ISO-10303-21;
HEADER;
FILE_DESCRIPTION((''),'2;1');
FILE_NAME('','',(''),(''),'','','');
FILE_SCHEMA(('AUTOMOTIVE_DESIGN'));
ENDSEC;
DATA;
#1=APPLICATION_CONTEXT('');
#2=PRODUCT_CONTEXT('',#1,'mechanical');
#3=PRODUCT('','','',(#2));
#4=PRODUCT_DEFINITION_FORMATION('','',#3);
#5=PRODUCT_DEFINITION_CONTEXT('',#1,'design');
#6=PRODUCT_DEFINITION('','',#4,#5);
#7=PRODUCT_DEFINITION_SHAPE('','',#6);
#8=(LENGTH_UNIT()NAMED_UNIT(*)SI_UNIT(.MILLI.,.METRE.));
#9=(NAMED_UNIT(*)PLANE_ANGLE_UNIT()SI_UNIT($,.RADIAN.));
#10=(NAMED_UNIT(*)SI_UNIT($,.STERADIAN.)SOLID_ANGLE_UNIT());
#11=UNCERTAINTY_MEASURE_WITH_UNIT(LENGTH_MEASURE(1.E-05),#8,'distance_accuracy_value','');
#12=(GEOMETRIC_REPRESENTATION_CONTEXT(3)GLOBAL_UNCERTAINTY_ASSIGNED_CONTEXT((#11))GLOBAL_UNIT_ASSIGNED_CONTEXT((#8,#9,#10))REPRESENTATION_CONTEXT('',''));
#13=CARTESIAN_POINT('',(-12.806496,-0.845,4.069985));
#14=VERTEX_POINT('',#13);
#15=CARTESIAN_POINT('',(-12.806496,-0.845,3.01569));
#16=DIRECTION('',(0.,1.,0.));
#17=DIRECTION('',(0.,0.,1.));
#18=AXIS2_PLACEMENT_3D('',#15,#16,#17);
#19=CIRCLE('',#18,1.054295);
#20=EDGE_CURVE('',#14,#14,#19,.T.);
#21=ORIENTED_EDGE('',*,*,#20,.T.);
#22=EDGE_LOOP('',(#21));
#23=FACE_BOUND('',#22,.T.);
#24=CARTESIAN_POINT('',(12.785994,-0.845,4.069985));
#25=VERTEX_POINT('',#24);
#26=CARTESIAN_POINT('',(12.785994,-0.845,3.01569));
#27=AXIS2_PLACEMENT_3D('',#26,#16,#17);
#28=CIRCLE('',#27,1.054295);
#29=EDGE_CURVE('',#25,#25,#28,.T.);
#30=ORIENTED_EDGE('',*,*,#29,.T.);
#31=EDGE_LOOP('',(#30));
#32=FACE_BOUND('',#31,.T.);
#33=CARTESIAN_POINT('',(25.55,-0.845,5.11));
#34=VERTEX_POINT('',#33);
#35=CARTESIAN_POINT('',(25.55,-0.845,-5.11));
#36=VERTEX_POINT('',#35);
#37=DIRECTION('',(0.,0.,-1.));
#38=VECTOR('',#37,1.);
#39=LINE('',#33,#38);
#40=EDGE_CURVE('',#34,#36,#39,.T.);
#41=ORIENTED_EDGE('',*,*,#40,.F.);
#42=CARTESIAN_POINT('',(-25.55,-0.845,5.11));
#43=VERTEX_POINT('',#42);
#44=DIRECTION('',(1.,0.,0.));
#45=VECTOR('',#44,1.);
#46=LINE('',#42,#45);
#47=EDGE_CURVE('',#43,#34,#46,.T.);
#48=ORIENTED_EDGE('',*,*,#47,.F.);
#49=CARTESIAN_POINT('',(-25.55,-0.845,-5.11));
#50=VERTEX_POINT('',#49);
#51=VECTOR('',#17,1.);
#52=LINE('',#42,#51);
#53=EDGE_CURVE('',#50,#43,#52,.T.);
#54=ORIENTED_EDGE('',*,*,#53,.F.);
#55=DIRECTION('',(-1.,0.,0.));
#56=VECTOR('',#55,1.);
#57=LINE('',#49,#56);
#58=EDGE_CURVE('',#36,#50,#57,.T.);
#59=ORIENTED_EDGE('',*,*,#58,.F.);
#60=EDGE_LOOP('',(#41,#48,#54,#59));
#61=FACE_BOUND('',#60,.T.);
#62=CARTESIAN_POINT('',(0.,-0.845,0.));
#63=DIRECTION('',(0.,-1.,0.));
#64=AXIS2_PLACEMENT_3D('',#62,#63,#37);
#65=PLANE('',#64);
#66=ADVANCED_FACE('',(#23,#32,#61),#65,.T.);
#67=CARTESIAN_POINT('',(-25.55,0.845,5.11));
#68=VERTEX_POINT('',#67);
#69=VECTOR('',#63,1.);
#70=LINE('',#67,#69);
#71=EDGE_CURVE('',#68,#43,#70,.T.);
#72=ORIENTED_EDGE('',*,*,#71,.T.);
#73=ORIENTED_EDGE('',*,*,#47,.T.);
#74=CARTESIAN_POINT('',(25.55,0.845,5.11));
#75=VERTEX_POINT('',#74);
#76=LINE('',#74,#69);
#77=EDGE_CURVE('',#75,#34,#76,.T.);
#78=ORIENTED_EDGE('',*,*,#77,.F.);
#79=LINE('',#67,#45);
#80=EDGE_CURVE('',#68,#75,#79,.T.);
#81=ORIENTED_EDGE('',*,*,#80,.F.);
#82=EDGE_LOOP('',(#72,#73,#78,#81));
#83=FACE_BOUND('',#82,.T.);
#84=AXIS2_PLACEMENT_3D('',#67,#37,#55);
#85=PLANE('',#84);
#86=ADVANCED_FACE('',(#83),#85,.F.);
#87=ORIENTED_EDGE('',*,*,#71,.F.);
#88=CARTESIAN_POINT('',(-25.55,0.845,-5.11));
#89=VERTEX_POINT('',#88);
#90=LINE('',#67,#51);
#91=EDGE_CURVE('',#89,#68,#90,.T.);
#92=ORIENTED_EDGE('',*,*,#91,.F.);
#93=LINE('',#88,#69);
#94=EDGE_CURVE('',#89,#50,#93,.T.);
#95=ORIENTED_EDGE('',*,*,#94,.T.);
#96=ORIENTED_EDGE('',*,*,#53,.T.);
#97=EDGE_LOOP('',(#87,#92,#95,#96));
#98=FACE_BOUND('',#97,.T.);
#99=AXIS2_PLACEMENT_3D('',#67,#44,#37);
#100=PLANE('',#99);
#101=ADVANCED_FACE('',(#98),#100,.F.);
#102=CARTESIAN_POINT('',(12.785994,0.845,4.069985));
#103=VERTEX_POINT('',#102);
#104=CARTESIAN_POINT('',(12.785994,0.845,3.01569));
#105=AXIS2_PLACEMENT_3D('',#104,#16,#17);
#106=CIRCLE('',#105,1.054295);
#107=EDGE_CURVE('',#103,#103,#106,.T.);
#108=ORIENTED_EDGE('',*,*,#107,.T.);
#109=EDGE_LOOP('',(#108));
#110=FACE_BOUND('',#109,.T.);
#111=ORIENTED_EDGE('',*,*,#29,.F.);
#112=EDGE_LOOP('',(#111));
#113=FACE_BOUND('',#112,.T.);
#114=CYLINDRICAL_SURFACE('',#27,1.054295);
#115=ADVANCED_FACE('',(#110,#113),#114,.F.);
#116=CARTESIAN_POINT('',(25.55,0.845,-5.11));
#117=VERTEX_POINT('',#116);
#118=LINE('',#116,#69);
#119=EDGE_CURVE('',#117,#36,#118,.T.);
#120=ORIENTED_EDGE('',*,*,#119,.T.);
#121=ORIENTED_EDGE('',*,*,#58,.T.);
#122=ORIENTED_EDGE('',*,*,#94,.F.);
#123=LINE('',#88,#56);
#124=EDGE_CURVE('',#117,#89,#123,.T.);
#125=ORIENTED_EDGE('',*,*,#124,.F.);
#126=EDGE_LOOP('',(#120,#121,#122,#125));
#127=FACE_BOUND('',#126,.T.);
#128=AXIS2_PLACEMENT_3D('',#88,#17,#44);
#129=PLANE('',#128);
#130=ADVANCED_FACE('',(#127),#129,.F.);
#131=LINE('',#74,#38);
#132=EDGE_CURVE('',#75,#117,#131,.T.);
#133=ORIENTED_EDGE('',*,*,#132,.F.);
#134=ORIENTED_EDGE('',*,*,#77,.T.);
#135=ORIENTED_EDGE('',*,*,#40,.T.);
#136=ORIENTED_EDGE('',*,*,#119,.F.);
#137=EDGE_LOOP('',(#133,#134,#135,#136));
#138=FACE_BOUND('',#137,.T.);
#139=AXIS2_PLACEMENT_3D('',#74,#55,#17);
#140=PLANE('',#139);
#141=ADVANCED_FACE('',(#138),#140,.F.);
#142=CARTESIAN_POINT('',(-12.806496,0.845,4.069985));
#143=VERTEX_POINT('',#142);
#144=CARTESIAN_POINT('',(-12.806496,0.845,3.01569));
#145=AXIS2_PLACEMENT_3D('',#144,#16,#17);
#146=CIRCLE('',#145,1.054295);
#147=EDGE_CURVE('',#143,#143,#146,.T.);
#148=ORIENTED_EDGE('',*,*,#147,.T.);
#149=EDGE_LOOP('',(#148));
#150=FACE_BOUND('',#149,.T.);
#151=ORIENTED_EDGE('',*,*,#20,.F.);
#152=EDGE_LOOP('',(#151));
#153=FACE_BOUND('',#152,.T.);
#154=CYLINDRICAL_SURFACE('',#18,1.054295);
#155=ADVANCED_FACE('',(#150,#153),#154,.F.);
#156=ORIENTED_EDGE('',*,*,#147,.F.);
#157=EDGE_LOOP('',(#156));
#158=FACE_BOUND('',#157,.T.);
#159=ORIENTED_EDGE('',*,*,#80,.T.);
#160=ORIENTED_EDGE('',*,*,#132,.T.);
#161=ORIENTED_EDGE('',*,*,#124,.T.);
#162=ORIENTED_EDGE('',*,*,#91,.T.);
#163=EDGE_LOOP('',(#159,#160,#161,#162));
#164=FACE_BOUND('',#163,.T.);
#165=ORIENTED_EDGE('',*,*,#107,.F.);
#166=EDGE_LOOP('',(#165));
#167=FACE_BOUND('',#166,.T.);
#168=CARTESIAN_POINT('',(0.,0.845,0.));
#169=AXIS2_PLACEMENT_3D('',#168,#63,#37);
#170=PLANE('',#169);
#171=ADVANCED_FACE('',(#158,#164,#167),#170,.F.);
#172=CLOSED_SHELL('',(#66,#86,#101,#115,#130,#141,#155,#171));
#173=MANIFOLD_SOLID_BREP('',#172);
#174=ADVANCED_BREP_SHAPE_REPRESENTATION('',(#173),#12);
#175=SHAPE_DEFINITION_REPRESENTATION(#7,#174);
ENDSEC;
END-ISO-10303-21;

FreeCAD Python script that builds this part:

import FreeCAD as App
import Part
import Sketcher

V = App.Vector


def add_polygon(sketch, points):
    """Adds a closed chain of lines whose ends are joined by coincident constraints."""
    first, n = sketch.GeometryCount, len(points)
    for a, b in zip(points, points[1:] + points[:1]):
        sketch.addGeometry(Part.LineSegment(App.Vector(*a, 0), App.Vector(*b, 0)), False)
    for i in range(n):
        sketch.addConstraint(Sketcher.Constraint("Coincident", first + i, 2, first + (i + 1) % n, 1))

doc = App.newDocument("Part")
params = doc.addObject("Spreadsheet::Sheet", "Params")
for row, (alias, value) in enumerate([
    ("sketch1_width", "51.1 mm"),
    ("sketch1_height", "10.22 mm"),
    ("pad1_length", "1.69 mm"),
], start=1):
    params.set(f"A{row}", alias)
    params.set(f"B{row}", "=" + value)
    params.setAlias(f"B{row}", alias)

body = doc.addObject("PartDesign::Body", "Body")

# Sketch on XZ plane
sketch1 = body.newObject("Sketcher::SketchObject", "Sketch")
sketch1.AttachmentSupport = (doc.getObject("XZ_Plane"), [""])
sketch1.MapMode = "FlatFace"
add_polygon(sketch1, [(-26, -5), (-26, 5), (26, 5), (26, -5)])  # lines 0-3
sketch1.addConstraint([
    Sketcher.Constraint("Vertical", 0),
    Sketcher.Constraint("Horizontal", 1),
    Sketcher.Constraint("Vertical", 2),
    Sketcher.Constraint("Horizontal", 3),
    Sketcher.Constraint("Symmetric", 0, 2, 2, 2, -1, 1),
    Sketcher.Constraint("DistanceX", 1, 1, 1, 2, 51.1),
    Sketcher.Constraint("DistanceY", 0, 1, 0, 2, 10.22),
])
sketch1.setExpression("Constraints[9]", "Params.sketch1_width")
sketch1.setExpression("Constraints[10]", "Params.sketch1_height")
pad1 = body.newObject("PartDesign::Pad", "Pad")
pad1.Profile = sketch1
pad1.setExpression("Length", "Params.pad1_length")
pad1.Midplane = True

# Sketch on XZ plane
sketch2 = body.newObject("Sketcher::SketchObject", "Sketch001")
sketch2.AttachmentSupport = (doc.getObject("XZ_Plane"), [""])
sketch2.MapMode = "FlatFace"
sketch2.AttachmentOffset = App.Placement(V(0, 0, -0.845), App.Rotation())
sketch2.addGeometry([
    Part.Circle(V(-12.8, 3, 0), V(0, 0, 1), 1.1),
    Part.Circle(V(12.8, 3, 0), V(0, 0, 1), 1.1),
], False)
sketch2.addConstraint([
    Sketcher.Constraint("Equal", 0, 1),
    Sketcher.Constraint("Horizontal", 0, 3, 1, 3),
    Sketcher.Constraint("Diameter", 0, 2.10859),
    Sketcher.Constraint("DistanceY", -1, 1, 0, 3, 3.01569),
    Sketcher.Constraint("DistanceX", 0, 3, 1, 3, 25.59249),
    Sketcher.Constraint("DistanceX", 0, 3, -1, 1, 12.806496),
])
pocket1 = body.newObject("PartDesign::Pocket", "Pocket")
pocket1.Profile = sketch2
pocket1.Type = "ThroughAll"
pocket1.Reversed = True

doc.recompute()
